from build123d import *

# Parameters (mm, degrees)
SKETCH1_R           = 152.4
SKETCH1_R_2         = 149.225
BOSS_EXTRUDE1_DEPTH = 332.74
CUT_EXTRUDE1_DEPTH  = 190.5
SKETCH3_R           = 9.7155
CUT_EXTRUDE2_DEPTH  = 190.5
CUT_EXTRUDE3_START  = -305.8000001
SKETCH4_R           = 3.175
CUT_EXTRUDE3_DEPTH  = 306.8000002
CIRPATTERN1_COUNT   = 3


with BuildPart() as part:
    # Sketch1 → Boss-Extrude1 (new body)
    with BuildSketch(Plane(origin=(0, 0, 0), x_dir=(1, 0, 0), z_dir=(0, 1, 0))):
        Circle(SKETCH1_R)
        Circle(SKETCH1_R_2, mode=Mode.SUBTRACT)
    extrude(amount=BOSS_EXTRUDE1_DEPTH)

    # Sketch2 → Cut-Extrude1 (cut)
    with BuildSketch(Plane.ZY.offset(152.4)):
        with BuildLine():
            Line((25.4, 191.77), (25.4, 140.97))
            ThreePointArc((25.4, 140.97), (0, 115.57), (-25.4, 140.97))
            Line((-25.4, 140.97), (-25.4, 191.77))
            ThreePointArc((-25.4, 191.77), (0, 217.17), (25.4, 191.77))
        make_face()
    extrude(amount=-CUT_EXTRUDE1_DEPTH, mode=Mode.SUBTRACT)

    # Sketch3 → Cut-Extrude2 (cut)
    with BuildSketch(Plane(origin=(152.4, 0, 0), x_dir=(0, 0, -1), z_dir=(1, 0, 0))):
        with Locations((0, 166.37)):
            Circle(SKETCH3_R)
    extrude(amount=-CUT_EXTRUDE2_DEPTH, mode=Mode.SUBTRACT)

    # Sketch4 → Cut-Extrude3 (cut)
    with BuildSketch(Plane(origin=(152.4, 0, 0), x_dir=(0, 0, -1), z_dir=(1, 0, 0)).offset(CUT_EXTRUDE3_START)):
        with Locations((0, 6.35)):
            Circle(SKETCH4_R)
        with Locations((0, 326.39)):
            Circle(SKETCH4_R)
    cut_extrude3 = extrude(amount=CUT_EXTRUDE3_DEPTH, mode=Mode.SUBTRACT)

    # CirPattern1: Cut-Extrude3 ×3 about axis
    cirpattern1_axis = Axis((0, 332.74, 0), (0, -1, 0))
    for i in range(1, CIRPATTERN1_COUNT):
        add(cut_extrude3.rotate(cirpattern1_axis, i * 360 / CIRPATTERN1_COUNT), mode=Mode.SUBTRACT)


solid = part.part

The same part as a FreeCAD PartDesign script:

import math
import FreeCAD as App
import Part
import Sketcher
from FreeCAD import Vector
Q = App.Units.Quantity

doc = App.newDocument("Part")
body = doc.addObject("PartDesign::Body", "Body")

sketch1 = body.newObject("Sketcher::SketchObject", "Sketch")
sketch1.AttachmentSupport = (doc.getObject("XZ_Plane"), [""])
sketch1.MapMode = "FlatFace"
sketch1.addGeometry([
    Part.Circle(Vector(0, 0, 0), Vector(0, 0, 1), 152),
    Part.Circle(Vector(0, 0, 0), Vector(0, 0, 1), 149),
], False)
sketch1.addConstraint([
    Sketcher.Constraint("Coincident", 0, 3, -1, 1),
    Sketcher.Constraint("Coincident", 1, 3, -1, 1),
    Sketcher.Constraint("Diameter", 0, Q("12 in")),
    Sketcher.Constraint("Diameter", 1, Q("11.75 in")),
])
pad1 = body.newObject("PartDesign::Pad", "Pad")
pad1.Profile = sketch1
pad1.Length = Q("13.1 in")
pad1.Reversed = True

sketch2 = body.newObject("Sketcher::SketchObject", "Sketch001")
sketch2.AttachmentSupport = (doc.getObject("YZ_Plane"), [""])
sketch2.MapMode = "FlatFace"
sketch2.AttachmentOffset = App.Placement(Vector(0, 0, -6 * 25.4), App.Rotation())
sketch2.addGeometry([
    Part.LineSegment(Vector(141, 25, 0), Vector(192, 25, 0)),
    Part.ArcOfCircle(Part.Circle(Vector(192, 0, 0), Vector(0, 0, 1), 25), math.radians(-90), math.radians(90)),
    Part.LineSegment(Vector(192, -25, 0), Vector(141, -25, 0)),
    Part.ArcOfCircle(Part.Circle(Vector(141, 0, 0), Vector(0, 0, 1), 25), math.radians(90), math.radians(270)),
], False)
sketch2.addConstraint([
    Sketcher.Constraint("Tangent", 0, 2, 1, 2),
    Sketcher.Constraint("Tangent", 1, 1, 2, 1),
    Sketcher.Constraint("Tangent", 2, 2, 3, 2),
    Sketcher.Constraint("Tangent", 3, 1, 0, 1),
    Sketcher.Constraint("Horizontal", 0),
    Sketcher.Constraint("Horizontal", 2),
    Sketcher.Constraint("PointOnObject", 1, 3, -1),
    Sketcher.Constraint("Radius", 1, Q("1 in")),
    Sketcher.Constraint("DistanceX", 0, 1, 0, 2, Q("2 in")),
    Sketcher.Constraint("DistanceX", -1, 1, 1, 3, Q("7.55 in")),
])
pocket1 = body.newObject("PartDesign::Pocket", "Pocket")
pocket1.Profile = sketch2
pocket1.Length = Q("7.5 in")
pocket1.Reversed = True

sketch3 = body.newObject("Sketcher::SketchObject", "Sketch002")
sketch3.AttachmentSupport = (doc.getObject("YZ_Plane"), [""])
sketch3.MapMode = "FlatFace"
sketch3.AttachmentOffset = App.Placement(Vector(0, 0, 6 * 25.4), App.Rotation())
sketch3.addGeometry(Part.Circle(Vector(166, 0, 0), Vector(0, 0, 1), 10), False)
sketch3.addConstraint([
    Sketcher.Constraint("PointOnObject", 0, 3, -1),
    Sketcher.Constraint("Diameter", 0, Q("0.765 in")),
    Sketcher.Constraint("DistanceX", -1, 1, 0, 3, Q("6.55 in")),
])
pocket2 = body.newObject("PartDesign::Pocket", "Pocket001")
pocket2.Profile = sketch3
pocket2.Length = Q("7.5 in")

sketch4 = body.newObject("Sketcher::SketchObject", "Sketch003")
sketch4.AttachmentSupport = (doc.getObject("YZ_Plane"), [""])
sketch4.MapMode = "FlatFace"
sketch4.AttachmentOffset = App.Placement(Vector(0, 0, -153.4), App.Rotation())
sketch4.addGeometry([
    Part.Circle(Vector(6.3, 0, 0), Vector(0, 0, 1), 3.2),
    Part.Circle(Vector(326.4, 0, 0), Vector(0, 0, 1), 3.2),
], False)
sketch4.addConstraint([
    Sketcher.Constraint("Equal", 0, 1),
    Sketcher.Constraint("PointOnObject", 0, 3, -1),
    Sketcher.Constraint("PointOnObject", 1, 3, -1),
    Sketcher.Constraint("Diameter", 0, Q("0.25 in")),
    Sketcher.Constraint("DistanceX", 0, 3, 1, 3, Q("12.6 in")),
    Sketcher.Constraint("DistanceX", -1, 1, 0, 3, Q("0.25 in")),
])
pocket3 = body.newObject("PartDesign::Pocket", "Pocket002")
pocket3.Profile = sketch4
pocket3.Length = 306.8
pocket3.Reversed = True
doc.recompute()

polarpattern = body.newObject("PartDesign::PolarPattern", "PolarPattern")
polarpattern.Originals = [pocket3]
polarpattern.Axis = (doc.getObject("Y_Axis"), [""])
polarpattern.Angle = 360
polarpattern.Occurrences = 3
body.Tip = polarpattern

doc.recompute()
